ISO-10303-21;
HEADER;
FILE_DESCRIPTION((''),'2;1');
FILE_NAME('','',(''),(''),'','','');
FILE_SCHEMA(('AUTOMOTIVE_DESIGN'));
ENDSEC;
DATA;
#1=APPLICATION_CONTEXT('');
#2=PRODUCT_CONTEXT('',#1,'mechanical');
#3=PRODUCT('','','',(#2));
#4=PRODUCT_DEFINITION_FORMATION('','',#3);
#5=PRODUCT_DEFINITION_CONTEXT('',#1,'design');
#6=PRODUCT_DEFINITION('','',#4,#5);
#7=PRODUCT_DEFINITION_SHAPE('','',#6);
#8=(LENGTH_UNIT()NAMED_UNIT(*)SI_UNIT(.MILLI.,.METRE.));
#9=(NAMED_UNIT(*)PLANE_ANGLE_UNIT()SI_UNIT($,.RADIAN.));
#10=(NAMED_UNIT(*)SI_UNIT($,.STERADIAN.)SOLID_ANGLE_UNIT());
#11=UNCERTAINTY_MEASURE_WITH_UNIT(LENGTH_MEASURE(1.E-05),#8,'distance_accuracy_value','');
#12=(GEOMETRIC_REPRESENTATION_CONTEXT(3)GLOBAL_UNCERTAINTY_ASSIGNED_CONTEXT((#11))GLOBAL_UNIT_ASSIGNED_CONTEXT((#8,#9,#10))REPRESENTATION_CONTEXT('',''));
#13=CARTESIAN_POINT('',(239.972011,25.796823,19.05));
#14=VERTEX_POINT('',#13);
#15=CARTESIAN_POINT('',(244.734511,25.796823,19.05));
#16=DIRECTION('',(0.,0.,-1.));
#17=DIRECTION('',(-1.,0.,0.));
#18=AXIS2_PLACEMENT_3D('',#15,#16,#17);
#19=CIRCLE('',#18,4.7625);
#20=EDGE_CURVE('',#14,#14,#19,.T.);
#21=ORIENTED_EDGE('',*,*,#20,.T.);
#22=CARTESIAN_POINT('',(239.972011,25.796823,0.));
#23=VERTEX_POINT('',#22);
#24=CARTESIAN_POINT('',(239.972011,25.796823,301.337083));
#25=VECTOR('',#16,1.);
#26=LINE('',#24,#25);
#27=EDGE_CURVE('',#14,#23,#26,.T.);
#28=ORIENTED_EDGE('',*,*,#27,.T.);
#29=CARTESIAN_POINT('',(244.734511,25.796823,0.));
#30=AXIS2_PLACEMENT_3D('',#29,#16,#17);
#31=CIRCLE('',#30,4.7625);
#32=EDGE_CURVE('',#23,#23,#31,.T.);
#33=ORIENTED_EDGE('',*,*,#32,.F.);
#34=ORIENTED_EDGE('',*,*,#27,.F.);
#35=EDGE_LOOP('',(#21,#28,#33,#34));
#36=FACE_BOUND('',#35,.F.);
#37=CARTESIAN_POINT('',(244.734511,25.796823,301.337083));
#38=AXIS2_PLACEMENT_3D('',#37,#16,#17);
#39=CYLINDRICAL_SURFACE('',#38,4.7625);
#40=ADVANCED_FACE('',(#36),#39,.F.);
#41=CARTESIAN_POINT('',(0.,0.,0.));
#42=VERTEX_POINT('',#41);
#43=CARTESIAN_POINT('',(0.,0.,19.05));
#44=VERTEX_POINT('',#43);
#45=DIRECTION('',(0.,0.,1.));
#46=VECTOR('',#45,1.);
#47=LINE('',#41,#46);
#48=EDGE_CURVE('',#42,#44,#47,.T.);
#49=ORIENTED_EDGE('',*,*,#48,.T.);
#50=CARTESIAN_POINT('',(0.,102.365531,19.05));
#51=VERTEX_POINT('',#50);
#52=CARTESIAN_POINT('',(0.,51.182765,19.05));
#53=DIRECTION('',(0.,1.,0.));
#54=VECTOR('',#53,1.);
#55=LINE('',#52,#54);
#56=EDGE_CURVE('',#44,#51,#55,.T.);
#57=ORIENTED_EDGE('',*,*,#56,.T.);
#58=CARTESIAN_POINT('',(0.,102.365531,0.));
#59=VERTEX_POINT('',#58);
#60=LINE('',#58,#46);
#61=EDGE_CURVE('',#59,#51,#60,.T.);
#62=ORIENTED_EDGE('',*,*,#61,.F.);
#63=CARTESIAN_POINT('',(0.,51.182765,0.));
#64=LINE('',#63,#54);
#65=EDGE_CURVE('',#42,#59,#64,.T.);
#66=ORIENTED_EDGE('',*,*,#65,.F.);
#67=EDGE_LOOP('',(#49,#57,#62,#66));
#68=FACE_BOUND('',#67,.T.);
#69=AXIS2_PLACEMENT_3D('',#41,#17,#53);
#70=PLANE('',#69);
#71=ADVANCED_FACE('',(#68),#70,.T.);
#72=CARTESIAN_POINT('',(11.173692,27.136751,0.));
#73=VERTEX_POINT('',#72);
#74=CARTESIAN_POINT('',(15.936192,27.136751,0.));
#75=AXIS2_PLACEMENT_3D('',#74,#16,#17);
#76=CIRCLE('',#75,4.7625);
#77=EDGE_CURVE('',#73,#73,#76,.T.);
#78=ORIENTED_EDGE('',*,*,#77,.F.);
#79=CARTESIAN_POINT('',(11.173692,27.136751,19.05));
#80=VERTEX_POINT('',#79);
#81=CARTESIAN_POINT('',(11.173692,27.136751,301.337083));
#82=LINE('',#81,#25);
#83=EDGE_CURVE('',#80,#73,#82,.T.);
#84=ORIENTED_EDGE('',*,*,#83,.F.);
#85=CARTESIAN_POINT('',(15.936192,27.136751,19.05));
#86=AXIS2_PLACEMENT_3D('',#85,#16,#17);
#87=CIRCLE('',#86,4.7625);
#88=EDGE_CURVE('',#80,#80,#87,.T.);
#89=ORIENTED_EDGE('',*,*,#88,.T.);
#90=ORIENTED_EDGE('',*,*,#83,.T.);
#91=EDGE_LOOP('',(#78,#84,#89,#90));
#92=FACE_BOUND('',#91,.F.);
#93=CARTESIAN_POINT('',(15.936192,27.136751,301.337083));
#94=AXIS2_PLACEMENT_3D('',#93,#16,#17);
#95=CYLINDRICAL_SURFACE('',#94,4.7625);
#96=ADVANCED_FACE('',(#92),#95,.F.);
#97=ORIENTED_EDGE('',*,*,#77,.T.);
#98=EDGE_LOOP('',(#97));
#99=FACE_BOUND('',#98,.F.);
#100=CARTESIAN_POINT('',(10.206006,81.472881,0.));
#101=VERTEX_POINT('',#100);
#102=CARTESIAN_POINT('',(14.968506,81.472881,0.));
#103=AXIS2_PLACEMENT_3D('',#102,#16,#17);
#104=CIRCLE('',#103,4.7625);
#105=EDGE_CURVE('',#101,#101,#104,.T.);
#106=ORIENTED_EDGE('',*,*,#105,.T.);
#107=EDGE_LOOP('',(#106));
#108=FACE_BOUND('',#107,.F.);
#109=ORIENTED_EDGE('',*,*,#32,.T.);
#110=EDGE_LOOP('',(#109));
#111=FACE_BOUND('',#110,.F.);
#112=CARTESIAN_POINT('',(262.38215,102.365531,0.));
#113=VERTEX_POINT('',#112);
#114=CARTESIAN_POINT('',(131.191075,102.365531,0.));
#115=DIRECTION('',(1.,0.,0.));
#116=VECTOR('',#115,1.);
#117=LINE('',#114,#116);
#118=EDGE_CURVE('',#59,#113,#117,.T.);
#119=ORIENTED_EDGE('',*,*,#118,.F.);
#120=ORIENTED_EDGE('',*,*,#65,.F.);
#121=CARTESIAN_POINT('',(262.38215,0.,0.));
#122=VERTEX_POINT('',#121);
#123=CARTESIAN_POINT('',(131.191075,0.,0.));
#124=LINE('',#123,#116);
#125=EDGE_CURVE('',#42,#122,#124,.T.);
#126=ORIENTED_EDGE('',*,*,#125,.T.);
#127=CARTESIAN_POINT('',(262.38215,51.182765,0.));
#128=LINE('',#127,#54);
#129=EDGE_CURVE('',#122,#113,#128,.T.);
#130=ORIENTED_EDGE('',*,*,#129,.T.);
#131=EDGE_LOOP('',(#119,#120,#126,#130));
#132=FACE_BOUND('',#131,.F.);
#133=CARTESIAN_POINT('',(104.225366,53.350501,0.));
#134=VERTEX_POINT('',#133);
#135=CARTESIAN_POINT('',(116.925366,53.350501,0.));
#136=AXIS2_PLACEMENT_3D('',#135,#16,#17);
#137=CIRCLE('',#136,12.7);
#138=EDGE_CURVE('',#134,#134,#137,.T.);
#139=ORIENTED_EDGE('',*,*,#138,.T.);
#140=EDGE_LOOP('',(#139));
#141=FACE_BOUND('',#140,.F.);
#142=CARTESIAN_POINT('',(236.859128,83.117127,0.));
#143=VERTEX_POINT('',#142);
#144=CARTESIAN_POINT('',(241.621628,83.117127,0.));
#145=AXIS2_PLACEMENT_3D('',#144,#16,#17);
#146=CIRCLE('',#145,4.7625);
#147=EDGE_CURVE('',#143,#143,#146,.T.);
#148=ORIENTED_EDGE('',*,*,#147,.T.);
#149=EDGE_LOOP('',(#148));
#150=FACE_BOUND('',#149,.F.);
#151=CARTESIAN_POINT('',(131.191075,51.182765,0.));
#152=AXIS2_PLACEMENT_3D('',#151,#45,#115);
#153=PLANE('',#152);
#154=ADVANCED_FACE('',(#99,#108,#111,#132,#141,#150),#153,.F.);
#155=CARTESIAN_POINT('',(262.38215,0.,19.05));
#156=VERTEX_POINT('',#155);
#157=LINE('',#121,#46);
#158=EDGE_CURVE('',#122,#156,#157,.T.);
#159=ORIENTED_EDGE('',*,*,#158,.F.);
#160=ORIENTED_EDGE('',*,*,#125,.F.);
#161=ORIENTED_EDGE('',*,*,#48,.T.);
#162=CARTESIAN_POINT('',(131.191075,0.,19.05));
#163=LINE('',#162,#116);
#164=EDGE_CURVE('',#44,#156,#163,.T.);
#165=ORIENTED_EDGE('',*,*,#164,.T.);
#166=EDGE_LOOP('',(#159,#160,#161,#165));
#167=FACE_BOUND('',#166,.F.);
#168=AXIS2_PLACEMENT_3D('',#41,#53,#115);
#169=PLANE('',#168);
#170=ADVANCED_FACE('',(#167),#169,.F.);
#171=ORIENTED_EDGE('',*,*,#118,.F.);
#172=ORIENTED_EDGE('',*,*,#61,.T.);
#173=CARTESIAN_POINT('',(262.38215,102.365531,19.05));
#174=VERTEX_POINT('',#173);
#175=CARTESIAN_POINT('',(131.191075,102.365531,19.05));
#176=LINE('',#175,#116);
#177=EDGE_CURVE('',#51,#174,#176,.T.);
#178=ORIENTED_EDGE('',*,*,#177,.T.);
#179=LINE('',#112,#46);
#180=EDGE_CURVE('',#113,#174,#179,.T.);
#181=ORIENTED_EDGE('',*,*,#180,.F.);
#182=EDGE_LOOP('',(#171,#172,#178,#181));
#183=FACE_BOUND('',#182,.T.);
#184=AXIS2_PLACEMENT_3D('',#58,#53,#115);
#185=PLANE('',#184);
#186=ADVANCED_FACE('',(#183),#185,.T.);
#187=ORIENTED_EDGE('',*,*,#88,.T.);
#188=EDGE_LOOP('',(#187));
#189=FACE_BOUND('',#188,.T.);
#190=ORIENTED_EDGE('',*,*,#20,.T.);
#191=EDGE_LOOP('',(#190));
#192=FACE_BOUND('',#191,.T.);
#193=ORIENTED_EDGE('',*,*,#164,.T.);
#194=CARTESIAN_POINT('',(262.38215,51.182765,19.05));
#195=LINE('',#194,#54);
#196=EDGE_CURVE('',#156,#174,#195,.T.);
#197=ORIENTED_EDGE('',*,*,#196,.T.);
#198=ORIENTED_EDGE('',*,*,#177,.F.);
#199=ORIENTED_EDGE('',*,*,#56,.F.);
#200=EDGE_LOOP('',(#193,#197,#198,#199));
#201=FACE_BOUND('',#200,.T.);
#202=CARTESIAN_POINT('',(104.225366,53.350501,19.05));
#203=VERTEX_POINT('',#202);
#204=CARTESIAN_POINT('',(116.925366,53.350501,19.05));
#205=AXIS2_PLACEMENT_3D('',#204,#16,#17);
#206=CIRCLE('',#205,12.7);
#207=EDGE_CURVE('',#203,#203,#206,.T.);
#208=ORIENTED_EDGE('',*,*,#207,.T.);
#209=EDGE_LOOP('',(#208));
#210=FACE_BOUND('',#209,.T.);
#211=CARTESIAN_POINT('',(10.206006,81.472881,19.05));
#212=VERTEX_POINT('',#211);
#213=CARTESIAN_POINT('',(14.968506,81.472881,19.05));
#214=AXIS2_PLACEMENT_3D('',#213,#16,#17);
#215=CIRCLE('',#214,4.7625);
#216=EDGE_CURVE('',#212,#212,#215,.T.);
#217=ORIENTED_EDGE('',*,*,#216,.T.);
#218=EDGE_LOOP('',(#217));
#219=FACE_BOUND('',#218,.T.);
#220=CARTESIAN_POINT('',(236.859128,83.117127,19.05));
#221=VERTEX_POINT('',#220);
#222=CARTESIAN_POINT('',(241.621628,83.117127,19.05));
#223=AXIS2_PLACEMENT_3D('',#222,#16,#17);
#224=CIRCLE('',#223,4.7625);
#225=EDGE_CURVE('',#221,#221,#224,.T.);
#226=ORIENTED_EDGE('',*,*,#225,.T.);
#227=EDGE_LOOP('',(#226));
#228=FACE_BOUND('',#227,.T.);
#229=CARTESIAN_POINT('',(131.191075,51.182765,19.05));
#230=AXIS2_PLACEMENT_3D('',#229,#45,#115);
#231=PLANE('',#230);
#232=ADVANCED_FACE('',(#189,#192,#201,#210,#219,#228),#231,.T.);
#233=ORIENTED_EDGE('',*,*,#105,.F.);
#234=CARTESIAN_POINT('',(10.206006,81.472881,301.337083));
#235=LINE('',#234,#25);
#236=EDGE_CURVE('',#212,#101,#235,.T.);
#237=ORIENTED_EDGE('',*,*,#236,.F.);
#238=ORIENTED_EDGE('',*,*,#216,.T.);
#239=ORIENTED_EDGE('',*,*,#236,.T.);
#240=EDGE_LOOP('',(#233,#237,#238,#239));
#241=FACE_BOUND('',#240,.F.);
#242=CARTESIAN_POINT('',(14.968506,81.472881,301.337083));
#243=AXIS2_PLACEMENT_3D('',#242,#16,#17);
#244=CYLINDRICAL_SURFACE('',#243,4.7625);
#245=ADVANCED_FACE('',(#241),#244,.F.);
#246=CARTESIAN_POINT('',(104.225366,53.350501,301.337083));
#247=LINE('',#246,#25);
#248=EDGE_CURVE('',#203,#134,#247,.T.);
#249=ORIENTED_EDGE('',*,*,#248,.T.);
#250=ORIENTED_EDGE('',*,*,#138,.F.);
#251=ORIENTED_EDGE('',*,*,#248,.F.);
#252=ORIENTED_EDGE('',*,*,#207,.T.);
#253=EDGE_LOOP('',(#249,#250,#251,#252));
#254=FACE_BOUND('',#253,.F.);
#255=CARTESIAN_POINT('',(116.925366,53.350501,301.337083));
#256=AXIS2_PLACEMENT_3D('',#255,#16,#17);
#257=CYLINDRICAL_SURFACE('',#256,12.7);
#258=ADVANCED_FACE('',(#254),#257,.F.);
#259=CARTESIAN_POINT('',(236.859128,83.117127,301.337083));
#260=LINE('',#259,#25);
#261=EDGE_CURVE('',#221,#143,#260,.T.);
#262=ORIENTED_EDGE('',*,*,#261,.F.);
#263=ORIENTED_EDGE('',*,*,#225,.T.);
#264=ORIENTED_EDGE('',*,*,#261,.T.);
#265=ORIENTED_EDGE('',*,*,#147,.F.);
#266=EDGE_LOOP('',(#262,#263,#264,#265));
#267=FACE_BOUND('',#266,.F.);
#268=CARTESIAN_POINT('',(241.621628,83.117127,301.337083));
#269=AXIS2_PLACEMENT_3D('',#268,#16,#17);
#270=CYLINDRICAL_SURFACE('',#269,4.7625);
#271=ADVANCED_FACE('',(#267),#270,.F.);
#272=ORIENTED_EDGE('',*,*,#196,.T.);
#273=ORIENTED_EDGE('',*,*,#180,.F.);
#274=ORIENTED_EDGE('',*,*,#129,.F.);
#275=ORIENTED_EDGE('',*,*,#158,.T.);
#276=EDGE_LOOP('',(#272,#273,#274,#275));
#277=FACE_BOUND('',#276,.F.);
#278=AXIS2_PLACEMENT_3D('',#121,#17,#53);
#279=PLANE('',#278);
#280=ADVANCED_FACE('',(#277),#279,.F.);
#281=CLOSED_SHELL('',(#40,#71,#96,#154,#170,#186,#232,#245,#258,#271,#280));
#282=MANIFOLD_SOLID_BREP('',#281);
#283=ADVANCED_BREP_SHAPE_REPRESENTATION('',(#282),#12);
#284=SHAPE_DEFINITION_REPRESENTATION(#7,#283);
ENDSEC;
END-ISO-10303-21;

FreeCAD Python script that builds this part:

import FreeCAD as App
import Part
import Sketcher
from FreeCAD import Vector
Q = App.Units.Quantity

doc = App.newDocument("Part")
body = doc.addObject("PartDesign::Body", "Body")

# Sketch on XY plane
sketch1 = body.newObject("Sketcher::SketchObject", "Sketch")
sketch1.AttachmentSupport = (doc.getObject("XY_Plane"), [""])
sketch1.MapMode = "FlatFace"
sketch1.addGeometry([
    Part.LineSegment(Vector(0, 102, 0), Vector(0, 0, 0)),
    Part.LineSegment(Vector(0, 0, 0), Vector(262, 0, 0)),
    Part.LineSegment(Vector(262, 0, 0), Vector(262, 102, 0)),
    Part.LineSegment(Vector(262, 102, 0), Vector(0, 102, 0)),
], False)
sketch1.addConstraint([
    Sketcher.Constraint("Coincident", 0, 2, 1, 1),
    Sketcher.Constraint("Coincident", 1, 2, 2, 1),
    Sketcher.Constraint("Coincident", 2, 2, 3, 1),
    Sketcher.Constraint("Coincident", 3, 2, 0, 1),
    Sketcher.Constraint("Vertical", 0),
    Sketcher.Constraint("Horizontal", 1),
    Sketcher.Constraint("Vertical", 2),
    Sketcher.Constraint("Horizontal", 3),
    Sketcher.Constraint("Coincident", 0, 2, -1, 1),
    Sketcher.Constraint("DistanceX", 1, 1, 1, 2, Q("262.38215 mm")),
    Sketcher.Constraint("DistanceY", 0, 2, 0, 1, Q("102.365531 mm")),
])
pad1 = body.newObject("PartDesign::Pad", "Pad")
pad1.Profile = sketch1
pad1.Length = Q("0.75 in")

# Sketch on XY plane
sketch2 = body.newObject("Sketcher::SketchObject", "Sketch001")
sketch2.AttachmentSupport = (doc.getObject("XY_Plane"), [""])
sketch2.MapMode = "FlatFace"
sketch2.AttachmentOffset = App.Placement(Vector(0, 0, 0.75 * 25.4), App.Rotation())
sketch2.addGeometry(Part.Circle(Vector(117, 53, 0), Vector(0, 0, 1), 13), False)
sketch2.addConstraint([
    Sketcher.Constraint("Diameter", 0, Q("1 in")),
    Sketcher.Constraint("DistanceY", -1, 1, 0, 3, Q("53.350501 mm")),
    Sketcher.Constraint("DistanceX", -1, 1, 0, 3, Q("116.925366 mm")),
])
doc.recompute()
hole = body.newObject("PartDesign::Hole", "Hole")
hole.Profile = sketch2
hole.ThreadType = "None"
hole.Diameter = Q("1 in")
hole.DepthType = "ThroughAll"

# Sketch on XY plane
sketch3 = body.newObject("Sketcher::SketchObject", "Sketch002")
sketch3.AttachmentSupport = (doc.getObject("XY_Plane"), [""])
sketch3.MapMode = "FlatFace"
sketch3.AttachmentOffset = App.Placement(Vector(0, 0, 0.75 * 25.4), App.Rotation())
sketch3.addGeometry([
    Part.Circle(Vector(15, 81.5, 0), Vector(0, 0, 1), 4.8),
    Part.Circle(Vector(15.9, 27.1, 0), Vector(0, 0, 1), 4.8),
    Part.Circle(Vector(241.6, 83.1, 0), Vector(0, 0, 1), 4.8),
    Part.Circle(Vector(244.7, 25.8, 0), Vector(0, 0, 1), 4.8),
], False)
sketch3.addConstraint([
    Sketcher.Constraint("Equal", 0, 1),
    Sketcher.Constraint("Equal", 1, 2),
    Sketcher.Constraint("Equal", 2, 3),
    Sketcher.Constraint("Diameter", 0, Q("0.375 in")),
    Sketcher.Constraint("DistanceY", -1, 1, 0, 3, Q("81.472881 mm")),
    Sketcher.Constraint("DistanceY", -1, 1, 1, 3, Q("27.136751 mm")),
    Sketcher.Constraint("DistanceX", -1, 1, 3, 3, Q("244.734511 mm")),
    Sketcher.Constraint("DistanceX", 0, 3, 2, 3, Q("226.653122 mm")),
    Sketcher.Constraint("DistanceX", 1, 3, 3, 3, Q("228.798319 mm")),
    Sketcher.Constraint("DistanceY", 3, 3, 1, 3, Q("1.339928 mm")),
    Sketcher.Constraint("DistanceX", -1, 1, 0, 3, Q("14.968506 mm")),
    Sketcher.Constraint("DistanceY", -1, 1, 2, 3, Q("83.117127 mm")),
])
doc.recompute()
hole2 = body.newObject("PartDesign::Hole", "Hole001")
hole2.Profile = sketch3
hole2.ThreadType = "None"
hole2.Diameter = Q("0.375 in")
hole2.DepthType = "ThroughAll"

doc.recompute()
